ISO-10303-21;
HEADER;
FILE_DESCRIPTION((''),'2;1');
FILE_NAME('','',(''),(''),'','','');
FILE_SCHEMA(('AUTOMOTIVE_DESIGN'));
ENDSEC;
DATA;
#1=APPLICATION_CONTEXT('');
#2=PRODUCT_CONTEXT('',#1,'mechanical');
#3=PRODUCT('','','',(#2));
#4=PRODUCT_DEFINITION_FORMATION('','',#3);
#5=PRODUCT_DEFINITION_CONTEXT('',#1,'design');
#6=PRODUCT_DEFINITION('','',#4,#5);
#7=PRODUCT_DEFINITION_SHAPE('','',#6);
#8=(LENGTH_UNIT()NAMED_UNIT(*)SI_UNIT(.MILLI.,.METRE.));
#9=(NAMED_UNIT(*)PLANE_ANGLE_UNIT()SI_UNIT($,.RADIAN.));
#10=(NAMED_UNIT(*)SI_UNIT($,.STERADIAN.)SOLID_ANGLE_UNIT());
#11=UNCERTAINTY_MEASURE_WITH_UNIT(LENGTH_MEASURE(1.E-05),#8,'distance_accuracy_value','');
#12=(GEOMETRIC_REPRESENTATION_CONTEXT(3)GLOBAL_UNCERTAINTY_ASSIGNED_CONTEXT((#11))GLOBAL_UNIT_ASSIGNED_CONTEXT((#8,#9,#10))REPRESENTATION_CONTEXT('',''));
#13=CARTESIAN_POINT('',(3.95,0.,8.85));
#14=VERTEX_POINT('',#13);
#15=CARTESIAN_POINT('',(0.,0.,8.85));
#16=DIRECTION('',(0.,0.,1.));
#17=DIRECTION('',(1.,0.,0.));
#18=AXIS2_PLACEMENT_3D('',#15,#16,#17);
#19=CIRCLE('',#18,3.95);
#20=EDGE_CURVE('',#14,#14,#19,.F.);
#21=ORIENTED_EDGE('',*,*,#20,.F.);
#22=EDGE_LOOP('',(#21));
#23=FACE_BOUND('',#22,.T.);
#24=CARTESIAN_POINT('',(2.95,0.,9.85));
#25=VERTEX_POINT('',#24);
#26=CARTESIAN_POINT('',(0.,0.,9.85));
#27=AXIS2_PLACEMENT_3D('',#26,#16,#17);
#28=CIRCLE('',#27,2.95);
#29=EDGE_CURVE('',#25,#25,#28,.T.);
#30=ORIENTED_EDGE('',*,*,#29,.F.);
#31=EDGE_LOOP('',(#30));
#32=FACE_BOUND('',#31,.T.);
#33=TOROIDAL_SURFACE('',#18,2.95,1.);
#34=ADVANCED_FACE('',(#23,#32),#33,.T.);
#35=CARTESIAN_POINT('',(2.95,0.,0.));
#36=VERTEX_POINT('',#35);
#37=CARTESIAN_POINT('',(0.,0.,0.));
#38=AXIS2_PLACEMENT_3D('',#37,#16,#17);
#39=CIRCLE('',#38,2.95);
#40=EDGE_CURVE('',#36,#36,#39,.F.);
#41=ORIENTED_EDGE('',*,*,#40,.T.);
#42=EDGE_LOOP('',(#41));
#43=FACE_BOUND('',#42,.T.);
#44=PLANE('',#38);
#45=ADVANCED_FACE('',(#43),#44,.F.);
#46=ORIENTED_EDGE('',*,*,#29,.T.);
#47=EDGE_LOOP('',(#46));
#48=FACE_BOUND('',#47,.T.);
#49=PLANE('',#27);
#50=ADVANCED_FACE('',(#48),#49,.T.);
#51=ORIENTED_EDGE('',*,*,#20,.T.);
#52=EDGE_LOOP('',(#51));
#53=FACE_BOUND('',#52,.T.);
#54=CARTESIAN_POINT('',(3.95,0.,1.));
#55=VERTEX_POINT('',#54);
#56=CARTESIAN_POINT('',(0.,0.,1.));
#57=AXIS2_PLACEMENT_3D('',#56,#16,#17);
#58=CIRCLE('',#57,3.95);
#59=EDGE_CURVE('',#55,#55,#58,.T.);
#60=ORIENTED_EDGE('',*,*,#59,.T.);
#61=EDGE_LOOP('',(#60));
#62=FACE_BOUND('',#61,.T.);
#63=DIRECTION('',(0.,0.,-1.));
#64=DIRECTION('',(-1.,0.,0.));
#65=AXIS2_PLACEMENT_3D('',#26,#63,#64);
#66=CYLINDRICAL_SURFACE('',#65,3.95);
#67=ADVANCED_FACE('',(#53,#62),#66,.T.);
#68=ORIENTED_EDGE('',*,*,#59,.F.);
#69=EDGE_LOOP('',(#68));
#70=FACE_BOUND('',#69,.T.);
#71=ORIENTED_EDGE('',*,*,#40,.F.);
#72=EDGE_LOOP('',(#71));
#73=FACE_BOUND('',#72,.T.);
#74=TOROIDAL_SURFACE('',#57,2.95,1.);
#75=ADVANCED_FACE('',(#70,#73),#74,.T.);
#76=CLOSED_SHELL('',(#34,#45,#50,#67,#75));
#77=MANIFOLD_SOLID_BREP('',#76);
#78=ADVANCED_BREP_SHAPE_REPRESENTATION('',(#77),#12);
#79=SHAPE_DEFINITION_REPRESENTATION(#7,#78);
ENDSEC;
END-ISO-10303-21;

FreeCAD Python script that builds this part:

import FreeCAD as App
import Part
import Sketcher
from FreeCAD import Vector
Q = App.Units.Quantity


def edges_at(feature, points):
    """Names of the edges that pass closest to the given points."""
    edges = feature.Shape.Edges
    near = lambda p: min(range(len(edges)), key=lambda i: edges[i].distToShape(Part.Vertex(*p))[0])
    return sorted({f"Edge{near(p) + 1}" for p in points})

doc = App.newDocument("Part")
params = doc.addObject("Spreadsheet::Sheet", "Params")
for row, (alias, value) in enumerate([
    ("sketch1_diameter", "7.9 mm"),
    ("pad1_length", "9.85 mm"),
    ("fillet_radius", "1 mm"),
], start=1):
    params.set(f"A{row}", alias)
    params.set(f"B{row}", "=" + value)
    params.setAlias(f"B{row}", alias)

body = doc.addObject("PartDesign::Body", "Body")

# Sketch on XY plane
sketch1 = body.newObject("Sketcher::SketchObject", "Sketch")
sketch1.AttachmentSupport = (doc.getObject("XY_Plane"), [""])
sketch1.MapMode = "FlatFace"
sketch1.addGeometry(Part.Circle(Vector(0, 0, 0), Vector(0, 0, 1), 4), False)
sketch1.addConstraint(Sketcher.Constraint("Coincident", 0, 3, -1, 1))
sketch1.addConstraint(Sketcher.Constraint("Diameter", 0, Q("7.9 mm")))
sketch1.setExpression("Constraints[1]", "Params.sketch1_diameter")
pad1 = body.newObject("PartDesign::Pad", "Pad")
pad1.Profile = sketch1
pad1.setExpression("Length", "Params.pad1_length")
doc.recompute()

fillet = body.newObject("PartDesign::Fillet", "Fillet")
fillet.Base = (pad1, edges_at(pad1, [(-3.95, 0, 0), (-3.95, 0, 9.85)]))
fillet.setExpression("Radius", "Params.fillet_radius")

doc.recompute()
